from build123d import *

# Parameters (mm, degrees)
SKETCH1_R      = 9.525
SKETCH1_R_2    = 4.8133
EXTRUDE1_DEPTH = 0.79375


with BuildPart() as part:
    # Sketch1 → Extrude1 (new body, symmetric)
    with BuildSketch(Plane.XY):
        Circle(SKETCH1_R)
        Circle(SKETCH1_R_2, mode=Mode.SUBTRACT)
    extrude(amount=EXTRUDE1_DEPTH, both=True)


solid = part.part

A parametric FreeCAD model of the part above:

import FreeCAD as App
import Part
import Sketcher
Q = App.Units.Quantity

doc = App.newDocument("Part")
body = doc.addObject("PartDesign::Body", "Body")

sketch1 = doc.addObject("Sketcher::SketchObject", "Sketch")
body.addObject(sketch1)
sketch1.AttachmentSupport = (doc.XY_Plane, [""])
sketch1.MapMode = "FlatFace"
sketch1.addGeometry([
    Part.Circle(App.Vector(0, 0, 0), App.Vector(0, 0, 1), 9.525),
    Part.Circle(App.Vector(0, 0, 0), App.Vector(0, 0, 1), 4.8133),
], False)
sketch1.addConstraint([
    Sketcher.Constraint("Coincident", 0, 3, -1, 1),
    Sketcher.Constraint("Coincident", 1, 3, -1, 1),
    Sketcher.Constraint("Diameter", 0, Q("0.75 in")),
    Sketcher.Constraint("Diameter", 1, Q("0.379 in")),
])
pad1 = doc.addObject("PartDesign::Pad", "Pad")
body.addObject(pad1)
pad1.Profile = sketch1
pad1.Length = Q("0.0625 in")
pad1.Midplane = True

doc.recompute()
